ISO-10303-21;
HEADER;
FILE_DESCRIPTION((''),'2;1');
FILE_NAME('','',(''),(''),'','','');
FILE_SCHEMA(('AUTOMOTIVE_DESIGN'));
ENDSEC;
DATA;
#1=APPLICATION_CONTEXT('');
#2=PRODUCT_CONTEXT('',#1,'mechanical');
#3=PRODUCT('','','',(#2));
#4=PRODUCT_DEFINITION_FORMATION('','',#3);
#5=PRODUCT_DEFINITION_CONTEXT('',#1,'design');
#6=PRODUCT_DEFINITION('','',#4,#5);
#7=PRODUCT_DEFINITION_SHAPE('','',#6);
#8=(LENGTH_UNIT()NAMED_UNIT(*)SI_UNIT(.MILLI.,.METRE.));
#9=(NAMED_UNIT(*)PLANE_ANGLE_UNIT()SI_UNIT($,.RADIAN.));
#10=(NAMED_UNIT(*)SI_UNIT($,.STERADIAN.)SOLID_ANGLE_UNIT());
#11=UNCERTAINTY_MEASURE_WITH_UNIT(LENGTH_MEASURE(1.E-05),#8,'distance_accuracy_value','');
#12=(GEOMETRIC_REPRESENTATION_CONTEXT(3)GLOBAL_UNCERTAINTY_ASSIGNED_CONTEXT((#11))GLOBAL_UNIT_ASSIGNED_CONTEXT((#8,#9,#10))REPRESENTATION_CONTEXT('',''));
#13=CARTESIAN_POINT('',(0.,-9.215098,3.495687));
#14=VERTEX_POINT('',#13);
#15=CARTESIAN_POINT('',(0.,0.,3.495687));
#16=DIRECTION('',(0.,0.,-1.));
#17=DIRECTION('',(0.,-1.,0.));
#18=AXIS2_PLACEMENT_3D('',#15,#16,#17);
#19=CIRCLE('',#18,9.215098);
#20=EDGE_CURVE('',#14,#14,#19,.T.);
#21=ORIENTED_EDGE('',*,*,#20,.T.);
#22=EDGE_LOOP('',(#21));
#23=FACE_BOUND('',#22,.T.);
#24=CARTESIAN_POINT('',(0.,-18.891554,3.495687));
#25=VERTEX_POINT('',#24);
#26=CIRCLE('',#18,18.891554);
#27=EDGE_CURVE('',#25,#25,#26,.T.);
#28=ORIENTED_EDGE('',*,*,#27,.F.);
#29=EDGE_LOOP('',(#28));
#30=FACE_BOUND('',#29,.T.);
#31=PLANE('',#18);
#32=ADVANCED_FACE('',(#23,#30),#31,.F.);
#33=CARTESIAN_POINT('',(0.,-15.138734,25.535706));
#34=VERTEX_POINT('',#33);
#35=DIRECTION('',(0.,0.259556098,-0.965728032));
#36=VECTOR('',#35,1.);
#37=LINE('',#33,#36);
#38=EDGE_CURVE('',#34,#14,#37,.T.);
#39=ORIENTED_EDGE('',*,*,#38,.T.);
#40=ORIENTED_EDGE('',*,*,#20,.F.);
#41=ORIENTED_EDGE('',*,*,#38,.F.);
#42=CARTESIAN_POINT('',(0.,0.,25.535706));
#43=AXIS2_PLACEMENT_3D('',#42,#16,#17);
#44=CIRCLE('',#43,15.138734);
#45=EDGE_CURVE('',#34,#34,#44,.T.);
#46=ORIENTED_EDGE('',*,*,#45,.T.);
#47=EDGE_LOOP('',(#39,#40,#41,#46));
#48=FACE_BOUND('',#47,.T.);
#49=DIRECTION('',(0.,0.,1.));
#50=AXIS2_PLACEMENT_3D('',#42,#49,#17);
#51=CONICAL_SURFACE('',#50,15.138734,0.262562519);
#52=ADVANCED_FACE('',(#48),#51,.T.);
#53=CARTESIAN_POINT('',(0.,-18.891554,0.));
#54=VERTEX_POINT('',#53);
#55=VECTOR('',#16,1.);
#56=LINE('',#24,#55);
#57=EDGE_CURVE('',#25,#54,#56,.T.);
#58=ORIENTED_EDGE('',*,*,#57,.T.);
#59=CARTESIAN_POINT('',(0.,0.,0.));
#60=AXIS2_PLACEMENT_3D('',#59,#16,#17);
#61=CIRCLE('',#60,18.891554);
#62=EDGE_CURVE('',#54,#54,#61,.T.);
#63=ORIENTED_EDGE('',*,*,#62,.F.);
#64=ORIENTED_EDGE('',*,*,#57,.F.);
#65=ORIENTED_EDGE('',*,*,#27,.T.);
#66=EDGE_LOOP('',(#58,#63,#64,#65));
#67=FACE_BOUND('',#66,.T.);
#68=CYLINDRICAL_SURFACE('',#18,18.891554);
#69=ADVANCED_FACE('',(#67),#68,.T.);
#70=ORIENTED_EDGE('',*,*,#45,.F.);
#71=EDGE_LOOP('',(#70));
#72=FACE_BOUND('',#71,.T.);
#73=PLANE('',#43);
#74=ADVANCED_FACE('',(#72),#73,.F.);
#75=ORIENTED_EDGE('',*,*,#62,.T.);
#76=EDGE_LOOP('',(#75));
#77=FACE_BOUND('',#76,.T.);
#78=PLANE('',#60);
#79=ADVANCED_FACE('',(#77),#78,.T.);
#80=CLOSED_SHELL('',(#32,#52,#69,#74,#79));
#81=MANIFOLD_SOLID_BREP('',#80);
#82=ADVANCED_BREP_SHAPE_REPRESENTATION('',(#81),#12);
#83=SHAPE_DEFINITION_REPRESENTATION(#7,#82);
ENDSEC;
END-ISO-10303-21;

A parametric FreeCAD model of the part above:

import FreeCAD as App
import Part
import Sketcher


def add_polygon(sketch, points):
    """Adds a closed chain of lines whose ends are joined by coincident constraints."""
    first, n = sketch.GeometryCount, len(points)
    for a, b in zip(points, points[1:] + points[:1]):
        sketch.addGeometry(Part.LineSegment(App.Vector(*a, 0), App.Vector(*b, 0)), False)
    for i in range(n):
        sketch.addConstraint(Sketcher.Constraint("Coincident", first + i, 2, first + (i + 1) % n, 1))

doc = App.newDocument("Part")
body = doc.addObject("PartDesign::Body", "Body")

# Sketch on YZ plane
sketch1 = doc.addObject("Sketcher::SketchObject", "Sketch")
body.addObject(sketch1)
sketch1.AttachmentSupport = (doc.YZ_Plane, [""])
sketch1.MapMode = "FlatFace"
add_polygon(sketch1, [(0, 25.535706), (-15.138734, 25.535706), (-9.215098, 3.495687), (-18.891554, 3.495687), (-18.891554, 0), (0, 0)])  # lines 0-5
sketch1.addConstraint(Sketcher.Constraint("Horizontal", 0))
sketch1.addConstraint(Sketcher.Constraint("Horizontal", 2))
sketch1.addConstraint(Sketcher.Constraint("Vertical", 3))
sketch1.addConstraint(Sketcher.Constraint("Horizontal", 4))
sketch1.addConstraint(Sketcher.Constraint("Vertical", 5))
sketch1.addConstraint(Sketcher.Constraint("Coincident", 4, 2, -1, 1))
sketch1.addConstraint(Sketcher.Constraint("Distance", 1, 22.82218))
sketch1.addConstraint(Sketcher.Constraint("DistanceX", 0, 2, 0, 1, 15.138734))
sketch1.addConstraint(Sketcher.Constraint("DistanceX", 2, 2, 2, 1, 9.676456))
sketch1.addConstraint(Sketcher.Constraint("DistanceX", 4, 1, 4, 2, 18.891554))
sketch1.addConstraint(Sketcher.Constraint("DistanceY", 3, 2, 3, 1, 3.495687))
revolution = doc.addObject("PartDesign::Revolution", "Revolution")
body.addObject(revolution)
revolution.Profile = sketch1
revolution.ReferenceAxis = (sketch1, ["V_Axis"])
revolution.Angle = 360

doc.recompute()
